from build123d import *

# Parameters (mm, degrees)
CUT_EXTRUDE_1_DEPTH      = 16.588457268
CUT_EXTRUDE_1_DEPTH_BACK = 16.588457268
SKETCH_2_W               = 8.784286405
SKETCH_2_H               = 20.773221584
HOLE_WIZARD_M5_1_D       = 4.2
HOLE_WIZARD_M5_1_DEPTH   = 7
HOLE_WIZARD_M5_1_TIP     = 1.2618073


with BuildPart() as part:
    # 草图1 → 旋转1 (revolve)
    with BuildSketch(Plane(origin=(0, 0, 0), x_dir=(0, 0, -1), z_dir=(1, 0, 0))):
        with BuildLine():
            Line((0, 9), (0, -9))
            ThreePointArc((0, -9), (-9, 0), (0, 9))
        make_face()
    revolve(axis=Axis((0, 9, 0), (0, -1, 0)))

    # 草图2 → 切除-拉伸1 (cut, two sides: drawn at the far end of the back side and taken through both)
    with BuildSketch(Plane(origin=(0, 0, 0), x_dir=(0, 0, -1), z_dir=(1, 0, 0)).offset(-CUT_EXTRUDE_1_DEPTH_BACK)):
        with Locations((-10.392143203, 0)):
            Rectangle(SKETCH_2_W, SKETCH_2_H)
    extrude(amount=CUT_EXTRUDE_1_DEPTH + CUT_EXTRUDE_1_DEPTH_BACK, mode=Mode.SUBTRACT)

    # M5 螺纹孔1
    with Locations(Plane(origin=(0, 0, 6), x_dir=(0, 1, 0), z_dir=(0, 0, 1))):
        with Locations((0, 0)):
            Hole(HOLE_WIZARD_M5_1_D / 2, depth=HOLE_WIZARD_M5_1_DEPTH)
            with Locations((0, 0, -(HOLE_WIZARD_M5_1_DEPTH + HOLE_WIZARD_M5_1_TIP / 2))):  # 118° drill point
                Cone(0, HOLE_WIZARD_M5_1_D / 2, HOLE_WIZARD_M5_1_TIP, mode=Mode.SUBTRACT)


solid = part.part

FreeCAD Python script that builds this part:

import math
import FreeCAD as App
import Part
import Sketcher

V = App.Vector

doc = App.newDocument("Part")
params = doc.addObject("Spreadsheet::Sheet", "Params")
for row, (alias, value) in enumerate([
    ("sketch1_radius", "9 mm"),
    ("revolution_angle", "360 deg"),
    ("sketch3_diameter", "4.2 mm"),
    ("hole_diameter", "4.2 mm"),
    ("hole_depth", "7 mm"),
], start=1):
    params.set(f"A{row}", alias)
    params.set(f"B{row}", "=" + value)
    params.setAlias(f"B{row}", alias)

body = doc.addObject("PartDesign::Body", "Body")

# Sketch on YZ plane
sketch1 = body.newObject("Sketcher::SketchObject", "Sketch")
sketch1.AttachmentSupport = (doc.getObject("YZ_Plane"), [""])
sketch1.MapMode = "FlatFace"
sketch1.addGeometry([
    Part.LineSegment(V(-9, 0, 0), V(9, 0, 0)),
    Part.ArcOfCircle(Part.Circle(V(0, 0, 0), V(0, 0, 1), 9), math.radians(0), math.radians(180)),
], False)
sketch1.addConstraint([
    Sketcher.Constraint("Coincident", 0, 1, 1, 2),
    Sketcher.Constraint("Coincident", 1, 1, 0, 2),
    Sketcher.Constraint("Horizontal", 0),
    Sketcher.Constraint("Coincident", 1, 3, -1, 1),
    Sketcher.Constraint("PointOnObject", 0, 1, -1),
    Sketcher.Constraint("Radius", 1, 9.0),
])
sketch1.setExpression("Constraints[5]", "Params.sketch1_radius")
revolution = body.newObject("PartDesign::Revolution", "Revolution")
revolution.Profile = sketch1
revolution.ReferenceAxis = (sketch1, ["H_Axis"])
revolution.setExpression("Angle", "Params.revolution_angle")

# Sketch on YZ plane
sketch2 = body.newObject("Sketcher::SketchObject", "Sketch001")
sketch2.AttachmentSupport = (doc.getObject("YZ_Plane"), [""])
sketch2.MapMode = "FlatFace"
sketch2.addGeometry([
    Part.LineSegment(V(10, 15, 0), V(-10, 15, 0)),
    Part.LineSegment(V(-10, 15, 0), V(-10, 6, 0)),
    Part.LineSegment(V(-10, 6, 0), V(10, 6, 0)),
    Part.LineSegment(V(10, 6, 0), V(10, 15, 0)),
], False)
sketch2.addConstraint([
    Sketcher.Constraint("Coincident", 0, 2, 1, 1),
    Sketcher.Constraint("Coincident", 1, 2, 2, 1),
    Sketcher.Constraint("Coincident", 2, 2, 3, 1),
    Sketcher.Constraint("Coincident", 3, 2, 0, 1),
    Sketcher.Constraint("Horizontal", 0),
    Sketcher.Constraint("Vertical", 1),
    Sketcher.Constraint("Horizontal", 2),
    Sketcher.Constraint("Vertical", 3),
    Sketcher.Constraint("DistanceY", -1, 1, 1, 2, 6.0),
    Sketcher.Constraint("DistanceX", 0, 2, 0, 1, 20.773222),
    Sketcher.Constraint("DistanceY", 1, 2, 1, 1, 8.784286),
    Sketcher.Constraint("DistanceX", 0, 2, -1, 1, 10.386611),
])
pocket1 = body.newObject("PartDesign::Pocket", "Pocket")
pocket1.Profile = sketch2
pocket1.Type = "ThroughAll"
pocket1.Midplane = True

# Sketch on XY plane
sketch3 = body.newObject("Sketcher::SketchObject", "Sketch002")
sketch3.AttachmentSupport = (doc.getObject("XY_Plane"), [""])
sketch3.MapMode = "FlatFace"
sketch3.AttachmentOffset = App.Placement(V(0, 0, 6), App.Rotation())
sketch3.addGeometry(Part.Circle(V(0, 0, 0), V(0, 0, 1), 2.1), False)
sketch3.addConstraint([
    Sketcher.Constraint("Coincident", 0, 3, -1, 1),
    Sketcher.Constraint("Diameter", 0, 4.2),
])
sketch3.setExpression("Constraints[1]", "Params.sketch3_diameter")
doc.recompute()
hole = body.newObject("PartDesign::Hole", "Hole")
hole.Profile = sketch3
hole.ThreadType = "None"
hole.setExpression("Diameter", "Params.hole_diameter")
hole.DepthType = "Dimension"
hole.setExpression("Depth", "Params.hole_depth")
hole.DrillPoint = "Angled"
hole.DrillPointAngle = 118

doc.recompute()
